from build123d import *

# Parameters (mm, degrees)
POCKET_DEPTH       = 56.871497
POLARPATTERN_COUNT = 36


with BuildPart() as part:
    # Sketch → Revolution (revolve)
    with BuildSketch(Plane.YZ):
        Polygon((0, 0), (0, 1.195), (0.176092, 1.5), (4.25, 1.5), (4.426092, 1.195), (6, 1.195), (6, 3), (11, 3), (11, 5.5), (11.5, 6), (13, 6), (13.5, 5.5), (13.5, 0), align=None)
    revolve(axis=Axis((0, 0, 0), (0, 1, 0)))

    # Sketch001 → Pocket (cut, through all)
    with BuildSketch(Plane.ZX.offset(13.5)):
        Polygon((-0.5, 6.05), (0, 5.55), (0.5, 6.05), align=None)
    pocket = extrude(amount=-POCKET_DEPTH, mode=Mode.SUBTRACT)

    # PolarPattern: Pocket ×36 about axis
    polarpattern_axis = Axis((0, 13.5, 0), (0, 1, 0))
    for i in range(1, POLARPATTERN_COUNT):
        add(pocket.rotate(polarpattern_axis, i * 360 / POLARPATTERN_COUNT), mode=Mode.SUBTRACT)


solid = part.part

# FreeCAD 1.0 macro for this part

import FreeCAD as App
import Part
import Sketcher

doc = App.newDocument("Part")
params = doc.addObject("Spreadsheet::Sheet", "Params")
for row, (alias, value) in enumerate([
    ("sketch1_width", "5 mm"),
    ("sketch1_width2", "13.5 mm"),
    ("sketch1_width3", "1.5 mm"),
    ("sketch1_height", "5.5 mm"),
    ("sketch1_height2", "2.5 mm"),
    ("revolution_angle", "360 deg"),
    ("sketch2_height", "1 mm"),
], start=1):
    params.set(f"A{row}", alias)
    params.set(f"B{row}", "=" + value)
    params.setAlias(f"B{row}", alias)

body = doc.addObject("PartDesign::Body", "Body")

# Sketch on YZ plane
sketch1 = body.newObject("Sketcher::SketchObject", "Sketch")
sketch1.AttachmentSupport = (doc.getObject("YZ_Plane"), [""])
sketch1.MapMode = "FlatFace"
sketch1.addGeometry(Part.LineSegment(App.Vector(0, 1.2, 0), App.Vector(0, 0, 0)), False)
sketch1.addGeometry(Part.LineSegment(App.Vector(0, 0, 0), App.Vector(13.5, 0, 0)), False)
sketch1.addGeometry(Part.LineSegment(App.Vector(13.5, 0, 0), App.Vector(13.5, 5.5, 0)), False)
sketch1.addGeometry(Part.LineSegment(App.Vector(13.5, 5.5, 0), App.Vector(13, 6, 0)), False)
sketch1.addGeometry(Part.LineSegment(App.Vector(13, 6, 0), App.Vector(11.5, 6, 0)), False)
sketch1.addGeometry(Part.LineSegment(App.Vector(11.5, 6, 0), App.Vector(11, 5.5, 0)), False)
sketch1.addGeometry(Part.LineSegment(App.Vector(11, 5.5, 0), App.Vector(11, 3, 0)), False)
sketch1.addGeometry(Part.LineSegment(App.Vector(11, 3, 0), App.Vector(6, 3, 0)), False)
sketch1.addGeometry(Part.LineSegment(App.Vector(6, 3, 0), App.Vector(6, 1.2, 0)), False)
sketch1.addGeometry(Part.LineSegment(App.Vector(6, 1.2, 0), App.Vector(4.43, 1.2, 0)), False)
sketch1.addGeometry(Part.LineSegment(App.Vector(4.43, 1.2, 0), App.Vector(4.25, 1.5, 0)), False)
sketch1.addGeometry(Part.LineSegment(App.Vector(4.25, 1.5, 0), App.Vector(0.18, 1.5, 0)), False)
sketch1.addGeometry(Part.LineSegment(App.Vector(0.18, 1.5, 0), App.Vector(0, 1.2, 0)), False)
sketch1.addConstraint(Sketcher.Constraint("Coincident", 0, 2, 1, 1))
sketch1.addConstraint(Sketcher.Constraint("Coincident", 1, 2, 2, 1))
sketch1.addConstraint(Sketcher.Constraint("Coincident", 2, 2, 3, 1))
sketch1.addConstraint(Sketcher.Constraint("Coincident", 3, 2, 4, 1))
sketch1.addConstraint(Sketcher.Constraint("Coincident", 4, 2, 5, 1))
sketch1.addConstraint(Sketcher.Constraint("Coincident", 5, 2, 6, 1))
sketch1.addConstraint(Sketcher.Constraint("Coincident", 6, 2, 7, 1))
sketch1.addConstraint(Sketcher.Constraint("Coincident", 7, 2, 8, 1))
sketch1.addConstraint(Sketcher.Constraint("Coincident", 8, 2, 9, 1))
sketch1.addConstraint(Sketcher.Constraint("Coincident", 9, 2, 10, 1))
sketch1.addConstraint(Sketcher.Constraint("Coincident", 10, 2, 11, 1))
sketch1.addConstraint(Sketcher.Constraint("Coincident", 11, 2, 12, 1))
sketch1.addConstraint(Sketcher.Constraint("Coincident", 12, 2, 0, 1))
sketch1.addConstraint(Sketcher.Constraint("Vertical", 0))
sketch1.addConstraint(Sketcher.Constraint("Horizontal", 1))
sketch1.addConstraint(Sketcher.Constraint("Vertical", 2))
sketch1.addConstraint(Sketcher.Constraint("Horizontal", 4))
sketch1.addConstraint(Sketcher.Constraint("Vertical", 6))
sketch1.addConstraint(Sketcher.Constraint("Horizontal", 7))
sketch1.addConstraint(Sketcher.Constraint("Vertical", 8))
sketch1.addConstraint(Sketcher.Constraint("Horizontal", 9))
sketch1.addConstraint(Sketcher.Constraint("Horizontal", 11))
sketch1.addConstraint(Sketcher.Constraint("Coincident", 0, 2, -1, 1))
sketch1.addConstraint(Sketcher.Constraint("Perpendicular", 3, 5))
sketch1.addConstraint(Sketcher.Constraint("Horizontal", 2, 2, 5, 2))
sketch1.addConstraint(Sketcher.Constraint("Horizontal", 9, 2, 12, 2))
sketch1.addConstraint(Sketcher.Constraint("Equal", 3, 5))
sketch1.addConstraint(Sketcher.Constraint("Equal", 10, 12))
sketch1.addConstraint(Sketcher.Constraint("DistanceX", 7, 2, 7, 1, 5.0))
sketch1.addConstraint(Sketcher.Constraint("DistanceX", 1, 1, 1, 2, 13.5))
sketch1.addConstraint(Sketcher.Constraint("DistanceX", 4, 2, 4, 1, 1.5))
sketch1.addConstraint(Sketcher.Constraint("DistanceY", 2, 1, 2, 2, 5.5))
sketch1.addConstraint(Sketcher.Constraint("DistanceY", 6, 2, 6, 1, 2.5))
sketch1.addConstraint(Sketcher.Constraint("DistanceX", -1, 1, 3, 2, 13.0))
sketch1.addConstraint(Sketcher.Constraint("DistanceY", -1, 1, 10, 2, 1.5))
sketch1.addConstraint(Sketcher.Constraint("DistanceY", 0, 2, 0, 1, 1.195))
sketch1.addConstraint(Sketcher.Constraint("DistanceX", -1, 1, 10, 2, 4.25))
sketch1.addConstraint(Sketcher.Constraint("DistanceX", 9, 2, 9, 1, 1.573908))
sketch1.setExpression("Constraints[28]", "Params.sketch1_width")
sketch1.setExpression("Constraints[29]", "Params.sketch1_width2")
sketch1.setExpression("Constraints[30]", "Params.sketch1_width3")
sketch1.setExpression("Constraints[31]", "Params.sketch1_height")
sketch1.setExpression("Constraints[32]", "Params.sketch1_height2")
revolution = body.newObject("PartDesign::Revolution", "Revolution")
revolution.Profile = sketch1
revolution.ReferenceAxis = (sketch1, ["H_Axis"])
revolution.setExpression("Angle", "Params.revolution_angle")

# Sketch on XZ plane
sketch2 = body.newObject("Sketcher::SketchObject", "Sketch001")
sketch2.AttachmentSupport = (doc.getObject("XZ_Plane"), [""])
sketch2.MapMode = "FlatFace"
sketch2.AttachmentOffset = App.Placement(App.Vector(0, 0, -13.5), App.Rotation())
sketch2.addGeometry(Part.LineSegment(App.Vector(6, -0.5, 0), App.Vector(5.5, 0, 0)), False)
sketch2.addGeometry(Part.LineSegment(App.Vector(5.5, 0, 0), App.Vector(6, 0.5, 0)), False)
sketch2.addGeometry(Part.LineSegment(App.Vector(6, 0.5, 0), App.Vector(6, -0.5, 0)), False)
sketch2.addConstraint(Sketcher.Constraint("Coincident", 0, 2, 1, 1))
sketch2.addConstraint(Sketcher.Constraint("Coincident", 1, 2, 2, 1))
sketch2.addConstraint(Sketcher.Constraint("Coincident", 2, 2, 0, 1))
sketch2.addConstraint(Sketcher.Constraint("Vertical", 2))
sketch2.addConstraint(Sketcher.Constraint("PointOnObject", 0, 2, -1))
sketch2.addConstraint(Sketcher.Constraint("Perpendicular", 0, 1))
sketch2.addConstraint(Sketcher.Constraint("Equal", 0, 1))
sketch2.addConstraint(Sketcher.Constraint("DistanceY", 2, 2, 2, 1, 1.0))
sketch2.addConstraint(Sketcher.Constraint("DistanceX", -1, 1, 0, 2, 5.55))
sketch2.setExpression("Constraints[7]", "Params.sketch2_height")
pocket1 = body.newObject("PartDesign::Pocket", "Pocket")
pocket1.Profile = sketch2
pocket1.Type = "ThroughAll"
pocket1.Reversed = True
doc.recompute()

polarpattern = body.newObject("PartDesign::PolarPattern", "PolarPattern")
polarpattern.Originals = [pocket1]
polarpattern.Axis = (doc.getObject("Y_Axis"), [""])
polarpattern.Angle = 360
polarpattern.Occurrences = 36
body.Tip = polarpattern

doc.recompute()
